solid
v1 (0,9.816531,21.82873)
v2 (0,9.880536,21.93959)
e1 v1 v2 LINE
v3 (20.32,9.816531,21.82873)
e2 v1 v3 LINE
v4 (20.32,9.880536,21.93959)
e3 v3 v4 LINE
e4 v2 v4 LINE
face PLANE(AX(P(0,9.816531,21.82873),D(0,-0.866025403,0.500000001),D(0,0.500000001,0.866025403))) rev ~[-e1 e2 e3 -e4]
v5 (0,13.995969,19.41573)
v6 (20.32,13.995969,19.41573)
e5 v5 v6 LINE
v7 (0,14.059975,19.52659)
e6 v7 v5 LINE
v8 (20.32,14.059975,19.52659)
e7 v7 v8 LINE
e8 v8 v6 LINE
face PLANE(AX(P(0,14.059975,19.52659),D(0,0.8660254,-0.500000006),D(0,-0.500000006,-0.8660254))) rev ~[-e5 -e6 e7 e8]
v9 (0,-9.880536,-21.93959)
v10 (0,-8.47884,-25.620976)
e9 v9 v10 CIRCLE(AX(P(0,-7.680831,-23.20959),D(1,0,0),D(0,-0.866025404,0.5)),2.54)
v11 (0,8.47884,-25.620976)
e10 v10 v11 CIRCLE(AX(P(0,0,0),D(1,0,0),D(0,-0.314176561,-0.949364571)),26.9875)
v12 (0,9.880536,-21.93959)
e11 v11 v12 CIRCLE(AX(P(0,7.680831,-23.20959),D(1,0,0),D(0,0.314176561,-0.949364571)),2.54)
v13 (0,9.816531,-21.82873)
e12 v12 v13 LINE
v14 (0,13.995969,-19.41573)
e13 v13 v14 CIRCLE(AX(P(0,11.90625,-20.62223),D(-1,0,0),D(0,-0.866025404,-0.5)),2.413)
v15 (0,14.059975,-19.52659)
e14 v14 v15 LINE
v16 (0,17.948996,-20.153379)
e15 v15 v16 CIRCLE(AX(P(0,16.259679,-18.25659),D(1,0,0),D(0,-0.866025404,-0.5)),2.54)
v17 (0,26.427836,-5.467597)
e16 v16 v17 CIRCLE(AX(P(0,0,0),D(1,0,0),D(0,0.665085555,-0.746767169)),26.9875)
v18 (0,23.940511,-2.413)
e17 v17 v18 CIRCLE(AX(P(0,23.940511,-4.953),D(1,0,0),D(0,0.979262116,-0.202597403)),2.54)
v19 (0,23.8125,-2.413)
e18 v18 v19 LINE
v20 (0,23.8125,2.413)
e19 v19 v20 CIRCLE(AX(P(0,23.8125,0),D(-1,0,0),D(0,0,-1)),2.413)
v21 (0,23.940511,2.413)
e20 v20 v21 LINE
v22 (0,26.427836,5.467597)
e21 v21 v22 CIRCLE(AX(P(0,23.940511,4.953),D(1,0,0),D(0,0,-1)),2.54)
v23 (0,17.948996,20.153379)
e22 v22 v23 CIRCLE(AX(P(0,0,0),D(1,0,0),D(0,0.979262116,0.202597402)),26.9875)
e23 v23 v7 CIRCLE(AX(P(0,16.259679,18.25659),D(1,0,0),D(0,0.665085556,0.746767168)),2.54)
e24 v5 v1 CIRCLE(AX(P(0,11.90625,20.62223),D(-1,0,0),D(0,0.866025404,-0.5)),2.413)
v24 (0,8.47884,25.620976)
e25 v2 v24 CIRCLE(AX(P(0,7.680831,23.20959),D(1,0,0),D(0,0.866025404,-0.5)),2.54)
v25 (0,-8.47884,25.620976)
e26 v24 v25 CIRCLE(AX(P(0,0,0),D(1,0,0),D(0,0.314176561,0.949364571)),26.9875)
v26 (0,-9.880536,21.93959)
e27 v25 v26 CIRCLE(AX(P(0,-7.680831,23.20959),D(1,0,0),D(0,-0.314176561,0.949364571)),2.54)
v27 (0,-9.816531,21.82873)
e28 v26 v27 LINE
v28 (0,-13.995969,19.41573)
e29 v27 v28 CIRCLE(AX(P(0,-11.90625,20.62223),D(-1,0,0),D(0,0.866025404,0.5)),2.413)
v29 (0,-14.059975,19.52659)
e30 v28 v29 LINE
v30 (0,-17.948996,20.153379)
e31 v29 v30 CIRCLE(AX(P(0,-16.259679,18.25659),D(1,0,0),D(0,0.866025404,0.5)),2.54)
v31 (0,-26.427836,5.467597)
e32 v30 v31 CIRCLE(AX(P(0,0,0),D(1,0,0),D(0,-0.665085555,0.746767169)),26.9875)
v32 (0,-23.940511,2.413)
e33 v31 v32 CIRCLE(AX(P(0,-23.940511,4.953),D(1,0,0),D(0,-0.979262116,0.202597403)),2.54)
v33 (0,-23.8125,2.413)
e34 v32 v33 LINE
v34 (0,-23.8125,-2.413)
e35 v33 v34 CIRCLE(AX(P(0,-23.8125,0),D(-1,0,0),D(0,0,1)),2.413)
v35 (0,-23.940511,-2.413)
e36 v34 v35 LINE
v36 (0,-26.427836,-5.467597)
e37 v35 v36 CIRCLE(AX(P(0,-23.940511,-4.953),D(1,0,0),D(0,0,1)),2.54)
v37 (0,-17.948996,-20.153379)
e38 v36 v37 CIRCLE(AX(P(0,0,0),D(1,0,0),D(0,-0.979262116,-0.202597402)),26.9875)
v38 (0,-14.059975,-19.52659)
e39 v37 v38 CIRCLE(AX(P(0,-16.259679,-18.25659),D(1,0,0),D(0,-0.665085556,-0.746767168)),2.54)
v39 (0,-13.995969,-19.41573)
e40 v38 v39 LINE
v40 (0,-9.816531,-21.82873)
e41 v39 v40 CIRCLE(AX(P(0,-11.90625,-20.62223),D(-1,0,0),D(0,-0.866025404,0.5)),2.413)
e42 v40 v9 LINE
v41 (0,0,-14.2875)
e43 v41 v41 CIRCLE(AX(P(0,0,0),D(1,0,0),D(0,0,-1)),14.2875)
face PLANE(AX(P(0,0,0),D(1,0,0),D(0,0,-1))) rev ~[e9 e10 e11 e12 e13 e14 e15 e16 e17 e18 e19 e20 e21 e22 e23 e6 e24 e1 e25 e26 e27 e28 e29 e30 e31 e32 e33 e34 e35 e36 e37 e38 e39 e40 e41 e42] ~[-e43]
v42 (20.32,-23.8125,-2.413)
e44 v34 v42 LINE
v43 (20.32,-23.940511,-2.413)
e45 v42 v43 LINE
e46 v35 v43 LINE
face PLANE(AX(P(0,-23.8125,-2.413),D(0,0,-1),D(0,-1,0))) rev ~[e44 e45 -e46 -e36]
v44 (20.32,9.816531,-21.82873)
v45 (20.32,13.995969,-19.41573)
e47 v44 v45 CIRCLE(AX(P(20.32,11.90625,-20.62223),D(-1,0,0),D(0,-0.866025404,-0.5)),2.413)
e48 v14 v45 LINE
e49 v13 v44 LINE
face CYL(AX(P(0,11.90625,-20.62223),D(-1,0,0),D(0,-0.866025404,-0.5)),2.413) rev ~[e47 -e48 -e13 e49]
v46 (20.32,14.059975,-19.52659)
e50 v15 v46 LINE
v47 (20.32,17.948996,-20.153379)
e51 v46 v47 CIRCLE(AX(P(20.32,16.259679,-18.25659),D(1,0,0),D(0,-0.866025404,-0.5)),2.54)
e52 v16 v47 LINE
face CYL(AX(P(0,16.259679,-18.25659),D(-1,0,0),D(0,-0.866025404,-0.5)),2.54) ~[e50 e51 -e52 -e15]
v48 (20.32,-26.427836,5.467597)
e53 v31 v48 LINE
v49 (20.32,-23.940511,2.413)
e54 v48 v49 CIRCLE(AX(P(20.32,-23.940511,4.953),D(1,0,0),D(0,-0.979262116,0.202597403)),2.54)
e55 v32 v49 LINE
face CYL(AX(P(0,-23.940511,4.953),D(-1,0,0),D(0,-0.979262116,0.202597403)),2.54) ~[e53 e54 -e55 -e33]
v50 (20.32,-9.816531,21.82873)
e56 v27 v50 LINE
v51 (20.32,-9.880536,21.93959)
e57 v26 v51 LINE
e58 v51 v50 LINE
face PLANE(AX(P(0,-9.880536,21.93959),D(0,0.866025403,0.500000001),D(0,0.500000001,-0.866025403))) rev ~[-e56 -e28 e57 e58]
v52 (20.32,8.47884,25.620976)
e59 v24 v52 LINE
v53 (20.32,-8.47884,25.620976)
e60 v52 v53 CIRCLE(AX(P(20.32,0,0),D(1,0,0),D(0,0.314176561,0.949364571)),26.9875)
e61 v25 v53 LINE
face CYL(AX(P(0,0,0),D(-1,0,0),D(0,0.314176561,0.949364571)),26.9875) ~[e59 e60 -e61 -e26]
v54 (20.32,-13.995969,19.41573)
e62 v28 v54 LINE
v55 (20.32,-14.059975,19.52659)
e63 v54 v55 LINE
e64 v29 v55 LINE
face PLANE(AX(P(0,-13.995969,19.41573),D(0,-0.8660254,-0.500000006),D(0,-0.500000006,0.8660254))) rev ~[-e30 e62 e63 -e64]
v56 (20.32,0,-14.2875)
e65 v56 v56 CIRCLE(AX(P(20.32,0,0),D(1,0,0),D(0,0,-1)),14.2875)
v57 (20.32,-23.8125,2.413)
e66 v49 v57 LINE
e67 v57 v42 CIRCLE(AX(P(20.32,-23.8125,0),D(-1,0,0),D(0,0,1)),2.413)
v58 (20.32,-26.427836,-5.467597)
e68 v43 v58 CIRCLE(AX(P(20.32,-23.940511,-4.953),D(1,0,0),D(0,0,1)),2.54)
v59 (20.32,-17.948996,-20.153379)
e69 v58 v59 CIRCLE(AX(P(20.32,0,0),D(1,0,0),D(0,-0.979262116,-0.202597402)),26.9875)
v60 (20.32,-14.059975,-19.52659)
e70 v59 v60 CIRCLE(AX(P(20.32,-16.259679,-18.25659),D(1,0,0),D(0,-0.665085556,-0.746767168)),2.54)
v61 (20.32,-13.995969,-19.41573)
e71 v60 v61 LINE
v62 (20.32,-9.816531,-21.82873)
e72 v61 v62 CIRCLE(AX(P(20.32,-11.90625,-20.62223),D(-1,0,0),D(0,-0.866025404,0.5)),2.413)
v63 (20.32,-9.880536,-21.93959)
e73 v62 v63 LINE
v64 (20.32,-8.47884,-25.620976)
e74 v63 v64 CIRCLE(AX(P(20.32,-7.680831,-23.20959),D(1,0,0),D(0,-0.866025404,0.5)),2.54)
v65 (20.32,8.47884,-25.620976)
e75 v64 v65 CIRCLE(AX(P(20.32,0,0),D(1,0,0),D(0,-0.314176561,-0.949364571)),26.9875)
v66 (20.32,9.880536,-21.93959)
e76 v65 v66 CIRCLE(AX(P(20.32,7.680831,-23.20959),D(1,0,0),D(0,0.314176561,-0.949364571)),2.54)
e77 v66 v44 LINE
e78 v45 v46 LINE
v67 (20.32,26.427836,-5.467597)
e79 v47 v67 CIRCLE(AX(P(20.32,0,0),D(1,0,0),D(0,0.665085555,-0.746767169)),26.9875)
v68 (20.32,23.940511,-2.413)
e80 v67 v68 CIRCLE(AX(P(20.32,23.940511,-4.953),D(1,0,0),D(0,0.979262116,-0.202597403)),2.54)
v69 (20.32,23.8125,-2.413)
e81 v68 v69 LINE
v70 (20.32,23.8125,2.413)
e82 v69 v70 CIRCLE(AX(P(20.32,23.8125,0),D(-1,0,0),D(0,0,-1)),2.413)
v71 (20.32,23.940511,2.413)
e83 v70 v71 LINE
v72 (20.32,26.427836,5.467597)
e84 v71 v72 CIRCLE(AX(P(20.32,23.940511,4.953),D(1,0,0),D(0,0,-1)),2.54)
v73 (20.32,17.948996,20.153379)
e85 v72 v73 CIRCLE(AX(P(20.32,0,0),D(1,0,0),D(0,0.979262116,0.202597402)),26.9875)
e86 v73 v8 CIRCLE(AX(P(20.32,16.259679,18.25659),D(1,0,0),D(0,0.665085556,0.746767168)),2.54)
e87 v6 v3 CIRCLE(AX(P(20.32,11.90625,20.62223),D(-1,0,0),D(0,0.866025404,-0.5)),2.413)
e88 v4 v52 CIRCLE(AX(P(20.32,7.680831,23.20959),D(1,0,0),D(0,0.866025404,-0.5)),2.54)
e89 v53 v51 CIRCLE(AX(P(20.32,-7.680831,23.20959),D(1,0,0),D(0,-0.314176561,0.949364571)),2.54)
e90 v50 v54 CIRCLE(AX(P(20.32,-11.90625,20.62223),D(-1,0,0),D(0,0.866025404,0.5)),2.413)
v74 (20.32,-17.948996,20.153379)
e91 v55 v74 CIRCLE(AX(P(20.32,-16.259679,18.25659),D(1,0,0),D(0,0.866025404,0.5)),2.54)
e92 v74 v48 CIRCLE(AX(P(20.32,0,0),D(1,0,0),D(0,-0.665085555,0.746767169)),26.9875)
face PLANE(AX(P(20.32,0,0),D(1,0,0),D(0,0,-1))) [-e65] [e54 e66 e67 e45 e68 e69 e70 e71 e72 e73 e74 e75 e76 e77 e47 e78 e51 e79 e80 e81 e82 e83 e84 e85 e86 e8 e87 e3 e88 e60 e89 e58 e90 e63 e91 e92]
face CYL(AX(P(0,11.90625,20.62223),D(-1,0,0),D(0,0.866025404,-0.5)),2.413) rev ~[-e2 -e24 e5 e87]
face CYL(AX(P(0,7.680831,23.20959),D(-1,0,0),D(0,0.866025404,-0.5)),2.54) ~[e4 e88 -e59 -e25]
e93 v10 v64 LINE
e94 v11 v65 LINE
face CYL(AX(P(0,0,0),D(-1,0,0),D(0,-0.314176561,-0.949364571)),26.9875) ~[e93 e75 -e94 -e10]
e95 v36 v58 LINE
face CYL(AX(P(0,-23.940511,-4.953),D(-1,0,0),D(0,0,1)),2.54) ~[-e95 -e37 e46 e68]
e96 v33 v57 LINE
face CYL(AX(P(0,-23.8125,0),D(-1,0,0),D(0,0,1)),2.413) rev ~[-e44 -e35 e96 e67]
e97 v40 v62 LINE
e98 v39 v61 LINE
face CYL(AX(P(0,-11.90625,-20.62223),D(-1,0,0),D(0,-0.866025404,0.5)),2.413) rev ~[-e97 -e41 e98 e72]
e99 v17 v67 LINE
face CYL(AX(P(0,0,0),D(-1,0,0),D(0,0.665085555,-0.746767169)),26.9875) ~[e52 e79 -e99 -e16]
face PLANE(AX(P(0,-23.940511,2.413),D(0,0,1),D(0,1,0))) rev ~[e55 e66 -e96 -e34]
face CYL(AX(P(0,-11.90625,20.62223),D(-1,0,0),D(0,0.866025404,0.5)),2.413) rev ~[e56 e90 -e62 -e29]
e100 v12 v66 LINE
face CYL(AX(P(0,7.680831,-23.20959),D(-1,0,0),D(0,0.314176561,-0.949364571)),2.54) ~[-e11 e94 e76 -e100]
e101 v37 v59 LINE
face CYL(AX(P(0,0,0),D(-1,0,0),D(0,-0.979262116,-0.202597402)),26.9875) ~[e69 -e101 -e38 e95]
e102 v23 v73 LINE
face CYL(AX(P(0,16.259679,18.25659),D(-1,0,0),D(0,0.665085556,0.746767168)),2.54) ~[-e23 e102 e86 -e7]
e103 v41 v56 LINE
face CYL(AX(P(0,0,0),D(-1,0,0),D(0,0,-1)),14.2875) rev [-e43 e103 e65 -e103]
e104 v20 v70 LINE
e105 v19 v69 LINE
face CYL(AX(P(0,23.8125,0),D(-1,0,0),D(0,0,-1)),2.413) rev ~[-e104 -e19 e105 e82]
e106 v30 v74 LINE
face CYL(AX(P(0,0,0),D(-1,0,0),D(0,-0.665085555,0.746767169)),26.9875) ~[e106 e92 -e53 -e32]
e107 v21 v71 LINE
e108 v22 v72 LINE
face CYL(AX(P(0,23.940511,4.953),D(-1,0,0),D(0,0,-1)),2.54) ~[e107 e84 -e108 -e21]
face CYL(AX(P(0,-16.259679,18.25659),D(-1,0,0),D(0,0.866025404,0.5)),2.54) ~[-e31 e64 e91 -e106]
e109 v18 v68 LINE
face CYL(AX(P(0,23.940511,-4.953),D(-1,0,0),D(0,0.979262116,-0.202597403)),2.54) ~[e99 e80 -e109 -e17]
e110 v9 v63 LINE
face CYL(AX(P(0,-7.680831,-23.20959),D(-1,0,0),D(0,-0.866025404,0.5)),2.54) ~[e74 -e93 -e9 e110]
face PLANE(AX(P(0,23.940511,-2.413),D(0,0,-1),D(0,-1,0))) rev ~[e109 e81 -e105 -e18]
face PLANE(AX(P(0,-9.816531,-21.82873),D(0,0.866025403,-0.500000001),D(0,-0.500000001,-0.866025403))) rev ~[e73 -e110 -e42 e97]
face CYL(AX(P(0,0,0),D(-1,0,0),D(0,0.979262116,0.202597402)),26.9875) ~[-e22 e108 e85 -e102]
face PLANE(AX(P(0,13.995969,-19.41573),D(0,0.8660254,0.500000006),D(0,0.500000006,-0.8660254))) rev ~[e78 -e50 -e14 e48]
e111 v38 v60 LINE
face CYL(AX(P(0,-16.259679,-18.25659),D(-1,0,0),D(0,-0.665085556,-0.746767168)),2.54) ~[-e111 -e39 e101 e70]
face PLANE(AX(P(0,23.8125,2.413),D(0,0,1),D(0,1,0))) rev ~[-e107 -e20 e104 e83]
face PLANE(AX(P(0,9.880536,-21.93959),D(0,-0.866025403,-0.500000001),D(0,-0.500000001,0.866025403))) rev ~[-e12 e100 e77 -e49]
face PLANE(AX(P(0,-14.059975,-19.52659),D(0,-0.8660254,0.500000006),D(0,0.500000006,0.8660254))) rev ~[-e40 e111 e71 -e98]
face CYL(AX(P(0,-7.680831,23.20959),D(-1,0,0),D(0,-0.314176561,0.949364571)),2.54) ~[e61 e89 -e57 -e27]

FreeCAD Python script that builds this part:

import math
import FreeCAD as App
import Part
import Sketcher
Q = App.Units.Quantity

doc = App.newDocument("Part")
body = doc.addObject("PartDesign::Body", "Body")

sketch1 = body.newObject("Sketcher::SketchObject", "Sketch")
sketch1.AttachmentSupport = (doc.getObject("YZ_Plane"), [""])
sketch1.MapMode = "FlatFace"
sketch1.addGeometry(Part.LineSegment(App.Vector(23.81, 2.41, 0), App.Vector(23.94, 2.41, 0)), False)
sketch1.addGeometry(Part.ArcOfCircle(Part.Circle(App.Vector(23.94, 4.95, 0), App.Vector(0, 0, 1), 2.54), math.radians(-90), math.radians(12)), False)
sketch1.addGeometry(Part.ArcOfCircle(Part.Circle(App.Vector(0, 0, 0), App.Vector(0, 0, 1), 26.99), math.radians(12), math.radians(48)), False)
sketch1.addGeometry(Part.ArcOfCircle(Part.Circle(App.Vector(16.26, 18.26, 0), App.Vector(0, 0, 1), 2.54), math.radians(48), math.radians(150)), False)
sketch1.addGeometry(Part.LineSegment(App.Vector(14.06, 19.53, 0), App.Vector(14, 19.42, 0)), False)
sketch1.addGeometry(Part.ArcOfCircle(Part.Circle(App.Vector(11.91, 20.62, 0), App.Vector(0, 0, 1), 2.41), math.radians(150), math.radians(330)), False)
sketch1.addGeometry(Part.LineSegment(App.Vector(9.82, 21.83, 0), App.Vector(9.88, 21.94, 0)), False)
sketch1.addGeometry(Part.ArcOfCircle(Part.Circle(App.Vector(7.68, 23.21, 0), App.Vector(0, 0, 1), 2.54), math.radians(-30), math.radians(72)), False)
sketch1.addGeometry(Part.ArcOfCircle(Part.Circle(App.Vector(0, 0, 0), App.Vector(0, 0, 1), 26.99), math.radians(72), math.radians(108)), False)
sketch1.addGeometry(Part.ArcOfCircle(Part.Circle(App.Vector(-7.68, 23.21, 0), App.Vector(0, 0, 1), 2.54), math.radians(108), math.radians(210)), False)
sketch1.addGeometry(Part.LineSegment(App.Vector(-9.88, 21.94, 0), App.Vector(-9.82, 21.83, 0)), False)
sketch1.addGeometry(Part.ArcOfCircle(Part.Circle(App.Vector(-11.91, 20.62, 0), App.Vector(0, 0, 1), 2.41), math.radians(-150), math.radians(30)), False)
sketch1.addGeometry(Part.LineSegment(App.Vector(-14, 19.42, 0), App.Vector(-14.06, 19.53, 0)), False)
sketch1.addGeometry(Part.ArcOfCircle(Part.Circle(App.Vector(-16.26, 18.26, 0), App.Vector(0, 0, 1), 2.54), math.radians(30), math.radians(132)), False)
sketch1.addGeometry(Part.ArcOfCircle(Part.Circle(App.Vector(0, 0, 0), App.Vector(0, 0, 1), 26.99), math.radians(132), math.radians(168)), False)
sketch1.addGeometry(Part.ArcOfCircle(Part.Circle(App.Vector(-23.94, 4.95, 0), App.Vector(0, 0, 1), 2.54), math.radians(168), math.radians(270)), False)
sketch1.addGeometry(Part.LineSegment(App.Vector(-23.94, 2.41, 0), App.Vector(-23.81, 2.41, 0)), False)
sketch1.addGeometry(Part.ArcOfCircle(Part.Circle(App.Vector(-23.81, 0, 0), App.Vector(0, 0, 1), 2.41), math.radians(-90), math.radians(90)), False)
sketch1.addGeometry(Part.LineSegment(App.Vector(-23.81, -2.41, 0), App.Vector(-23.94, -2.41, 0)), False)
sketch1.addGeometry(Part.ArcOfCircle(Part.Circle(App.Vector(-23.94, -4.95, 0), App.Vector(0, 0, 1), 2.54), math.radians(90), math.radians(192)), False)
sketch1.addGeometry(Part.ArcOfCircle(Part.Circle(App.Vector(0, 0, 0), App.Vector(0, 0, 1), 26.99), math.radians(-168), math.radians(-132)), False)
sketch1.addGeometry(Part.ArcOfCircle(Part.Circle(App.Vector(-16.26, -18.26, 0), App.Vector(0, 0, 1), 2.54), math.radians(-132), math.radians(-30)), False)
sketch1.addGeometry(Part.LineSegment(App.Vector(-14.06, -19.53, 0), App.Vector(-14, -19.42, 0)), False)
sketch1.addGeometry(Part.ArcOfCircle(Part.Circle(App.Vector(-11.91, -20.62, 0), App.Vector(0, 0, 1), 2.41), math.radians(-30), math.radians(150)), False)
sketch1.addGeometry(Part.LineSegment(App.Vector(-9.82, -21.83, 0), App.Vector(-9.88, -21.94, 0)), False)
sketch1.addGeometry(Part.ArcOfCircle(Part.Circle(App.Vector(-7.68, -23.21, 0), App.Vector(0, 0, 1), 2.54), math.radians(150), math.radians(252)), False)
sketch1.addGeometry(Part.ArcOfCircle(Part.Circle(App.Vector(0, 0, 0), App.Vector(0, 0, 1), 26.99), math.radians(-108), math.radians(-72)), False)
sketch1.addGeometry(Part.ArcOfCircle(Part.Circle(App.Vector(7.68, -23.21, 0), App.Vector(0, 0, 1), 2.54), math.radians(-72), math.radians(30)), False)
sketch1.addGeometry(Part.LineSegment(App.Vector(9.88, -21.94, 0), App.Vector(9.82, -21.83, 0)), False)
sketch1.addGeometry(Part.ArcOfCircle(Part.Circle(App.Vector(11.91, -20.62, 0), App.Vector(0, 0, 1), 2.41), math.radians(30), math.radians(210)), False)
sketch1.addGeometry(Part.LineSegment(App.Vector(14, -19.42, 0), App.Vector(14.06, -19.53, 0)), False)
sketch1.addGeometry(Part.ArcOfCircle(Part.Circle(App.Vector(16.26, -18.26, 0), App.Vector(0, 0, 1), 2.54), math.radians(-150), math.radians(-48)), False)
sketch1.addGeometry(Part.ArcOfCircle(Part.Circle(App.Vector(0, 0, 0), App.Vector(0, 0, 1), 26.99), math.radians(-48), math.radians(-12)), False)
sketch1.addGeometry(Part.ArcOfCircle(Part.Circle(App.Vector(23.94, -4.95, 0), App.Vector(0, 0, 1), 2.54), math.radians(-12), math.radians(90)), False)
sketch1.addGeometry(Part.LineSegment(App.Vector(23.94, -2.41, 0), App.Vector(23.81, -2.41, 0)), False)
sketch1.addGeometry(Part.ArcOfCircle(Part.Circle(App.Vector(23.81, 0, 0), App.Vector(0, 0, 1), 2.41), math.radians(90), math.radians(270)), False)
sketch1.addGeometry(Part.Circle(App.Vector(0, 0, 0), App.Vector(0, 0, 1), 14.29), False)
sketch1.addConstraint(Sketcher.Constraint("Tangent", 0, 2, 1, 1))
sketch1.addConstraint(Sketcher.Constraint("Tangent", 1, 2, 2, 1))
sketch1.addConstraint(Sketcher.Constraint("Tangent", 2, 2, 3, 1))
sketch1.addConstraint(Sketcher.Constraint("Tangent", 3, 2, 4, 1))
sketch1.addConstraint(Sketcher.Constraint("Tangent", 4, 2, 5, 2))
sketch1.addConstraint(Sketcher.Constraint("Tangent", 5, 1, 6, 1))
sketch1.addConstraint(Sketcher.Constraint("Tangent", 6, 2, 7, 1))
sketch1.addConstraint(Sketcher.Constraint("Tangent", 7, 2, 8, 1))
sketch1.addConstraint(Sketcher.Constraint("Tangent", 8, 2, 9, 1))
sketch1.addConstraint(Sketcher.Constraint("Tangent", 9, 2, 10, 1))
sketch1.addConstraint(Sketcher.Constraint("Tangent", 10, 2, 11, 2))
sketch1.addConstraint(Sketcher.Constraint("Tangent", 11, 1, 12, 1))
sketch1.addConstraint(Sketcher.Constraint("Tangent", 12, 2, 13, 1))
sketch1.addConstraint(Sketcher.Constraint("Tangent", 13, 2, 14, 1))
sketch1.addConstraint(Sketcher.Constraint("Tangent", 14, 2, 15, 1))
sketch1.addConstraint(Sketcher.Constraint("Tangent", 15, 2, 16, 1))
sketch1.addConstraint(Sketcher.Constraint("Tangent", 16, 2, 17, 2))
sketch1.addConstraint(Sketcher.Constraint("Tangent", 17, 1, 18, 1))
sketch1.addConstraint(Sketcher.Constraint("Tangent", 18, 2, 19, 1))
sketch1.addConstraint(Sketcher.Constraint("Tangent", 19, 2, 20, 1))
sketch1.addConstraint(Sketcher.Constraint("Tangent", 20, 2, 21, 1))
sketch1.addConstraint(Sketcher.Constraint("Tangent", 21, 2, 22, 1))
sketch1.addConstraint(Sketcher.Constraint("Tangent", 22, 2, 23, 2))
sketch1.addConstraint(Sketcher.Constraint("Tangent", 23, 1, 24, 1))
sketch1.addConstraint(Sketcher.Constraint("Tangent", 24, 2, 25, 1))
sketch1.addConstraint(Sketcher.Constraint("Tangent", 25, 2, 26, 1))
sketch1.addConstraint(Sketcher.Constraint("Tangent", 26, 2, 27, 1))
sketch1.addConstraint(Sketcher.Constraint("Tangent", 27, 2, 28, 1))
sketch1.addConstraint(Sketcher.Constraint("Tangent", 28, 2, 29, 2))
sketch1.addConstraint(Sketcher.Constraint("Tangent", 29, 1, 30, 1))
sketch1.addConstraint(Sketcher.Constraint("Tangent", 30, 2, 31, 1))
sketch1.addConstraint(Sketcher.Constraint("Tangent", 31, 2, 32, 1))
sketch1.addConstraint(Sketcher.Constraint("Tangent", 32, 2, 33, 1))
sketch1.addConstraint(Sketcher.Constraint("Tangent", 33, 2, 34, 1))
sketch1.addConstraint(Sketcher.Constraint("Tangent", 34, 2, 35, 2))
sketch1.addConstraint(Sketcher.Constraint("Tangent", 35, 1, 0, 1))
sketch1.addConstraint(Sketcher.Constraint("Horizontal", 0))
sketch1.addConstraint(Sketcher.Constraint("Horizontal", 16))
sketch1.addConstraint(Sketcher.Constraint("Horizontal", 18))
sketch1.addConstraint(Sketcher.Constraint("Horizontal", 34))
sketch1.addConstraint(Sketcher.Constraint("Coincident", 2, 3, -1, 1))
sketch1.addConstraint(Sketcher.Constraint("Coincident", 8, 3, -1, 1))
sketch1.addConstraint(Sketcher.Constraint("Coincident", 14, 3, -1, 1))
sketch1.addConstraint(Sketcher.Constraint("Coincident", 20, 3, -1, 1))
sketch1.addConstraint(Sketcher.Constraint("Coincident", 26, 3, -1, 1))
sketch1.addConstraint(Sketcher.Constraint("Coincident", 32, 3, -1, 1))
sketch1.addConstraint(Sketcher.Constraint("Coincident", 36, 3, -1, 1))
sketch1.addConstraint(Sketcher.Constraint("Equal", 1, 3))
sketch1.addConstraint(Sketcher.Constraint("Equal", 3, 7))
sketch1.addConstraint(Sketcher.Constraint("Equal", 2, 8))
sketch1.addConstraint(Sketcher.Constraint("Equal", 7, 9))
sketch1.addConstraint(Sketcher.Constraint("Equal", 5, 11))
sketch1.addConstraint(Sketcher.Constraint("Equal", 9, 13))
sketch1.addConstraint(Sketcher.Constraint("Equal", 8, 14))
sketch1.addConstraint(Sketcher.Constraint("Equal", 13, 15))
sketch1.addConstraint(Sketcher.Constraint("Equal", 11, 17))
sketch1.addConstraint(Sketcher.Constraint("Equal", 15, 19))
sketch1.addConstraint(Sketcher.Constraint("Equal", 14, 20))
sketch1.addConstraint(Sketcher.Constraint("Equal", 19, 21))
sketch1.addConstraint(Sketcher.Constraint("Equal", 17, 23))
sketch1.addConstraint(Sketcher.Constraint("Equal", 21, 25))
sketch1.addConstraint(Sketcher.Constraint("Equal", 20, 26))
sketch1.addConstraint(Sketcher.Constraint("Equal", 25, 27))
sketch1.addConstraint(Sketcher.Constraint("Equal", 23, 29))
sketch1.addConstraint(Sketcher.Constraint("Equal", 27, 31))
sketch1.addConstraint(Sketcher.Constraint("Equal", 26, 32))
sketch1.addConstraint(Sketcher.Constraint("Equal", 31, 33))
sketch1.addConstraint(Sketcher.Constraint("Equal", 29, 35))
sketch1.addConstraint(Sketcher.Constraint("Symmetric", 5, 3, 23, 3, -1, 1))
sketch1.addConstraint(Sketcher.Constraint("Symmetric", 11, 3, 29, 3, -1, 1))
sketch1.addConstraint(Sketcher.Constraint("Symmetric", 17, 3, 35, 3, -1, 1))
sketch1.addConstraint(Sketcher.Constraint("Symmetric", 5, 3, 11, 3, -2))
sketch1.addConstraint(Sketcher.Constraint("PointOnObject", 17, 3, -1))
sketch1.addConstraint(Sketcher.Constraint("Parallel", 4, 6))
sketch1.addConstraint(Sketcher.Constraint("Parallel", 10, 12))
sketch1.addConstraint(Sketcher.Constraint("Parallel", 6, 22))
sketch1.addConstraint(Sketcher.Constraint("Parallel", 22, 24))
sketch1.addConstraint(Sketcher.Constraint("Parallel", 12, 28))
sketch1.addConstraint(Sketcher.Constraint("Parallel", 28, 30))
sketch1.addConstraint(Sketcher.Constraint("Horizontal", 7, 3, 9, 3))
sketch1.addConstraint(Sketcher.Constraint("Equal", 4, 6))
sketch1.addConstraint(Sketcher.Constraint("Radius", 1, Q("0.1 in")))
sketch1.addConstraint(Sketcher.Constraint("Diameter", 36, Q("1.125 in")))
sketch1.addConstraint(Sketcher.Constraint("Radius", 2, Q("1.0625 in")))
sketch1.addConstraint(Sketcher.Constraint("Radius", 5, Q("0.095 in")))
sketch1.addConstraint(Sketcher.Constraint("DistanceX", -1, 1, 5, 3, Q("0.46875 in")))
sketch1.addConstraint(Sketcher.Constraint("DistanceX", 17, 3, -1, 1, Q("0.9375 in")))
sketch1.addConstraint(Sketcher.Constraint("DistanceY", -1, 1, 7, 2, Q("1.0086999 in")))
pad1 = body.newObject("PartDesign::Pad", "Pad")
pad1.Profile = sketch1
pad1.Length = Q("0.8 in")

doc.recompute()
